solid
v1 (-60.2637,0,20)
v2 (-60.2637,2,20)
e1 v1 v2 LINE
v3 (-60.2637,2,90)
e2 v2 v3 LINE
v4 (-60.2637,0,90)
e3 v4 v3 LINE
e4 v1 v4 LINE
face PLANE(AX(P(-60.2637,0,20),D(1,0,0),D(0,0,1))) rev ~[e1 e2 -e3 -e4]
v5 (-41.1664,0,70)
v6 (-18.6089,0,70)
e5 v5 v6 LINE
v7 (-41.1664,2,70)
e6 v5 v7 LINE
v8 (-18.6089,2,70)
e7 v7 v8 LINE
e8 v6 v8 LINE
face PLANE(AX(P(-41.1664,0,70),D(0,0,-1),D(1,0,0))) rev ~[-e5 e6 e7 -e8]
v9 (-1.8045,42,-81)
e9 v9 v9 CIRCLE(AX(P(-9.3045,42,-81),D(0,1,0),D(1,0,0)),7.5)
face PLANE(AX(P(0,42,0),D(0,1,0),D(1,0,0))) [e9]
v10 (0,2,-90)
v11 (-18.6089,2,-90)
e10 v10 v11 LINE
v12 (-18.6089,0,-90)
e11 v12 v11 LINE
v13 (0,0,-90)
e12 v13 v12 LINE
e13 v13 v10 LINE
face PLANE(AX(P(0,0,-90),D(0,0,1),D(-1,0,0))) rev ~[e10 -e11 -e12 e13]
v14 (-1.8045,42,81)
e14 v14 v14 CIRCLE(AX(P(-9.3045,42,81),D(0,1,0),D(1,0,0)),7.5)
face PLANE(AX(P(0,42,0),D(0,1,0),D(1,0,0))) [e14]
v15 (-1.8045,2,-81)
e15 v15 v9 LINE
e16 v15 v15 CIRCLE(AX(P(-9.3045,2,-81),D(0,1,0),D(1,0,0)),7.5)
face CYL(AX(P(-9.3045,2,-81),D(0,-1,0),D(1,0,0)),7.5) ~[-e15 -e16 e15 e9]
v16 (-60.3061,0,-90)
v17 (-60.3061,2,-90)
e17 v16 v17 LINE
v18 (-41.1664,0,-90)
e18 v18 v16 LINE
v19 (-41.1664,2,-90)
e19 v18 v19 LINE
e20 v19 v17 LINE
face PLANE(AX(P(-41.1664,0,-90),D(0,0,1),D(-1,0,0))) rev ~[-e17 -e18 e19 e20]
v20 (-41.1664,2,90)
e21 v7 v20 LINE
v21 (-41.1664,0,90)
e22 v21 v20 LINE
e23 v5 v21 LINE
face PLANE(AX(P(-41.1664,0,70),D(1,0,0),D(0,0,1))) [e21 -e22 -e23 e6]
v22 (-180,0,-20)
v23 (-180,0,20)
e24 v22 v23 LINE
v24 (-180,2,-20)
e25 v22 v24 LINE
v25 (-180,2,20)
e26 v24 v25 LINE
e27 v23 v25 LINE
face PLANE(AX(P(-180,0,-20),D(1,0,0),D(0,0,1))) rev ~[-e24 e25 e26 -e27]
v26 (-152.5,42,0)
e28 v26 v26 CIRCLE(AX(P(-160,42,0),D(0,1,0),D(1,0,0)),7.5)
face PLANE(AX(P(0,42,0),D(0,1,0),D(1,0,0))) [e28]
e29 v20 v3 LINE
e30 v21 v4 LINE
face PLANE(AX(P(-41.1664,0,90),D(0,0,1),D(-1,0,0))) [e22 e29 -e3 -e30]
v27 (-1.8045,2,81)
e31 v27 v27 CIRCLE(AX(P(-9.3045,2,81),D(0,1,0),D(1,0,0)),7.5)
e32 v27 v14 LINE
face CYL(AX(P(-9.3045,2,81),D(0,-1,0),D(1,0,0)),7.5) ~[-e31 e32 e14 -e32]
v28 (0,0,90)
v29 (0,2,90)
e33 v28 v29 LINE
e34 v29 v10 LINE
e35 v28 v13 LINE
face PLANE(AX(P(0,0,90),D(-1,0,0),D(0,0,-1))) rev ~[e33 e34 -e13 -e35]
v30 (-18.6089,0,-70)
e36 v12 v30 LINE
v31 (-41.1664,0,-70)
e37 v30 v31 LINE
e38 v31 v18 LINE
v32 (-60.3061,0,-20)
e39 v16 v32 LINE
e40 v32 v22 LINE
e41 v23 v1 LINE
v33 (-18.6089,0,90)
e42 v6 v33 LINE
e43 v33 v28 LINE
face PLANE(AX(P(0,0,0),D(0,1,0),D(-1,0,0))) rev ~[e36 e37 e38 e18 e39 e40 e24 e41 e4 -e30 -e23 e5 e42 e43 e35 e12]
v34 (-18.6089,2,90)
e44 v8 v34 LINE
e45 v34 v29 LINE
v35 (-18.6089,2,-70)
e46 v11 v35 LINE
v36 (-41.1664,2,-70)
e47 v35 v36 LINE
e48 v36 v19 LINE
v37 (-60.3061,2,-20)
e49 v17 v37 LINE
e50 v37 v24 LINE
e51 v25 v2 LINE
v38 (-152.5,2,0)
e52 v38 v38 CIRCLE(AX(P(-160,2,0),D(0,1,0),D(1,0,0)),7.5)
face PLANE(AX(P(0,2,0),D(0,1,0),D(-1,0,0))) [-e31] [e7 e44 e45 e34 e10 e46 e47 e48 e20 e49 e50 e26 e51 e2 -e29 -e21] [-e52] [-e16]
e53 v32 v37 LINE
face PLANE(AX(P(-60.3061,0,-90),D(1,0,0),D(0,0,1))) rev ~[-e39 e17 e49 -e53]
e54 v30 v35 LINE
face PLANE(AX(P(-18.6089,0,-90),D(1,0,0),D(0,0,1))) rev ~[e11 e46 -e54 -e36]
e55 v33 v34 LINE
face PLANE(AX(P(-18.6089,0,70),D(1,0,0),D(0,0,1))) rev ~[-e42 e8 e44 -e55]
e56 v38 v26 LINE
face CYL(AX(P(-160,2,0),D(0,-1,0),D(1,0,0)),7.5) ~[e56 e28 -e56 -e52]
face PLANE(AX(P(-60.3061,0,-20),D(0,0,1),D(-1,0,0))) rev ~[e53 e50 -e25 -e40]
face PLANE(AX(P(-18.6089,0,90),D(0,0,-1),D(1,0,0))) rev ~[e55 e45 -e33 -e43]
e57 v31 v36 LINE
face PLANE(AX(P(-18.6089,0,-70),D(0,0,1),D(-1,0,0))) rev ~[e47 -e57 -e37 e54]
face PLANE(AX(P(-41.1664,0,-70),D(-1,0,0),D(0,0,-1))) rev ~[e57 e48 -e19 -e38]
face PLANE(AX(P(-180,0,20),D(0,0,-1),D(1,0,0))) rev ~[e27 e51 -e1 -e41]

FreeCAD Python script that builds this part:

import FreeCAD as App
import Part
import Sketcher
from FreeCAD import Vector

doc = App.newDocument("Part")
body = doc.addObject("PartDesign::Body", "Body")

# Sketch on XZ plane
sketch1 = body.newObject("Sketcher::SketchObject", "Sketch")
sketch1.AttachmentSupport = (doc.getObject("XZ_Plane"), [""])
sketch1.MapMode = "FlatFace"
sketch1.addGeometry([
    Part.LineSegment(Vector(-19, 90, 0), Vector(0, 90, 0)),  # 0
    Part.LineSegment(Vector(0, 90, 0), Vector(0, -90, 0)),  # 1
    Part.LineSegment(Vector(0, -90, 0), Vector(-19, -90, 0)),  # 2
    Part.LineSegment(Vector(-19, -90, 0), Vector(-19, -70, 0)),  # 3
    Part.LineSegment(Vector(-19, -70, 0), Vector(-41, -70, 0)),  # 4
    Part.LineSegment(Vector(-41, -70, 0), Vector(-41, -90, 0)),  # 5
    Part.LineSegment(Vector(-41, -90, 0), Vector(-60, -90, 0)),  # 6
    Part.LineSegment(Vector(-60, -90, 0), Vector(-60, -20, 0)),  # 7
    Part.LineSegment(Vector(-60, -20, 0), Vector(-180, -20, 0)),  # 8
    Part.LineSegment(Vector(-180, -20, 0), Vector(-180, 20, 0)),  # 9
    Part.LineSegment(Vector(-180, 20, 0), Vector(-60, 20, 0)),  # 10
    Part.LineSegment(Vector(-60, 20, 0), Vector(-60, 90, 0)),  # 11
    Part.LineSegment(Vector(-60, 90, 0), Vector(-41, 90, 0)),  # 12
    Part.LineSegment(Vector(-41, 90, 0), Vector(-41, 70, 0)),  # 13
    Part.LineSegment(Vector(-41, 70, 0), Vector(-19, 70, 0)),  # 14
    Part.LineSegment(Vector(-19, 70, 0), Vector(-19, 90, 0)),  # 15
], False)
sketch1.addConstraint([
    Sketcher.Constraint("Coincident", 0, 2, 1, 1),
    Sketcher.Constraint("Coincident", 1, 2, 2, 1),
    Sketcher.Constraint("Coincident", 2, 2, 3, 1),
    Sketcher.Constraint("Coincident", 3, 2, 4, 1),
    Sketcher.Constraint("Coincident", 4, 2, 5, 1),
    Sketcher.Constraint("Coincident", 5, 2, 6, 1),
    Sketcher.Constraint("Coincident", 6, 2, 7, 1),
    Sketcher.Constraint("Coincident", 7, 2, 8, 1),
    Sketcher.Constraint("Coincident", 8, 2, 9, 1),
    Sketcher.Constraint("Coincident", 9, 2, 10, 1),
    Sketcher.Constraint("Coincident", 10, 2, 11, 1),
    Sketcher.Constraint("Coincident", 11, 2, 12, 1),
    Sketcher.Constraint("Coincident", 12, 2, 13, 1),
    Sketcher.Constraint("Coincident", 13, 2, 14, 1),
    Sketcher.Constraint("Coincident", 14, 2, 15, 1),
    Sketcher.Constraint("Coincident", 15, 2, 0, 1),
    Sketcher.Constraint("Horizontal", 0),
    Sketcher.Constraint("Vertical", 1),
    Sketcher.Constraint("Horizontal", 2),
    Sketcher.Constraint("Vertical", 3),
    Sketcher.Constraint("Horizontal", 4),
    Sketcher.Constraint("Vertical", 5),
    Sketcher.Constraint("Horizontal", 6),
    Sketcher.Constraint("Vertical", 7),
    Sketcher.Constraint("Horizontal", 8),
    Sketcher.Constraint("Vertical", 9),
    Sketcher.Constraint("Horizontal", 10),
    Sketcher.Constraint("Vertical", 11),
    Sketcher.Constraint("Horizontal", 12),
    Sketcher.Constraint("Vertical", 13),
    Sketcher.Constraint("Horizontal", 14),
    Sketcher.Constraint("Vertical", 15),
    Sketcher.Constraint("Symmetric", 0, 2, 1, 2, -1, 1),
    Sketcher.Constraint("Symmetric", 5, 2, 12, 2, -1),
    Sketcher.Constraint("Symmetric", 3, 2, 14, 2, -1),
    Sketcher.Constraint("Horizontal", 2, 2, 5, 2),
    Sketcher.Constraint("Equal", 7, 11),
    Sketcher.Constraint("DistanceY", 1, 2, 1, 1, 180.0),
    Sketcher.Constraint("DistanceY", 3, 1, 3, 2, 20.0),
    Sketcher.Constraint("DistanceY", 7, 1, 7, 2, 70.0),
    Sketcher.Constraint("DistanceX", 8, 2, -1, 1, 180.0),
    Sketcher.Constraint("DistanceX", 0, 1, 0, 2, 18.609),
    Sketcher.Constraint("DistanceX", 8, 2, 8, 1, 119.694),
    Sketcher.Constraint("DistanceX", 4, 2, 4, 1, 22.5575),
    Sketcher.Constraint("DistanceX", 10, 1, 10, 2, 119.7363),
])
pad1 = body.newObject("PartDesign::Pad", "Pad")
pad1.Profile = sketch1
pad1.Length = 2
pad1.Reversed = True

# Sketch on XZ plane
sketch2 = body.newObject("Sketcher::SketchObject", "Sketch001")
sketch2.AttachmentSupport = (doc.getObject("XZ_Plane"), [""])
sketch2.MapMode = "FlatFace"
sketch2.AttachmentOffset = App.Placement(Vector(0, 0, -2), App.Rotation())
sketch2.addGeometry([
    Part.Circle(Vector(-160, 0, 0), Vector(0, 0, 1), 8),
    Part.Circle(Vector(-9, 81, 0), Vector(0, 0, 1), 8),
    Part.Circle(Vector(-9, -81, 0), Vector(0, 0, 1), 8),
], False)
sketch2.addConstraint([
    Sketcher.Constraint("Equal", 0, 1),
    Sketcher.Constraint("Equal", 1, 2),
    Sketcher.Constraint("Symmetric", 1, 3, 2, 3, -1),
    Sketcher.Constraint("PointOnObject", 0, 3, -1),
    Sketcher.Constraint("Diameter", 0, 15.0),
    Sketcher.Constraint("DistanceX", 0, 3, -1, 1, 160.0),
    Sketcher.Constraint("DistanceY", -1, 1, 1, 3, 81.0),
    Sketcher.Constraint("DistanceX", 1, 3, -1, 1, 9.3045),
])
pad2 = body.newObject("PartDesign::Pad", "Pad001")
pad2.Profile = sketch2
pad2.Length = 40
pad2.Reversed = True

doc.recompute()
